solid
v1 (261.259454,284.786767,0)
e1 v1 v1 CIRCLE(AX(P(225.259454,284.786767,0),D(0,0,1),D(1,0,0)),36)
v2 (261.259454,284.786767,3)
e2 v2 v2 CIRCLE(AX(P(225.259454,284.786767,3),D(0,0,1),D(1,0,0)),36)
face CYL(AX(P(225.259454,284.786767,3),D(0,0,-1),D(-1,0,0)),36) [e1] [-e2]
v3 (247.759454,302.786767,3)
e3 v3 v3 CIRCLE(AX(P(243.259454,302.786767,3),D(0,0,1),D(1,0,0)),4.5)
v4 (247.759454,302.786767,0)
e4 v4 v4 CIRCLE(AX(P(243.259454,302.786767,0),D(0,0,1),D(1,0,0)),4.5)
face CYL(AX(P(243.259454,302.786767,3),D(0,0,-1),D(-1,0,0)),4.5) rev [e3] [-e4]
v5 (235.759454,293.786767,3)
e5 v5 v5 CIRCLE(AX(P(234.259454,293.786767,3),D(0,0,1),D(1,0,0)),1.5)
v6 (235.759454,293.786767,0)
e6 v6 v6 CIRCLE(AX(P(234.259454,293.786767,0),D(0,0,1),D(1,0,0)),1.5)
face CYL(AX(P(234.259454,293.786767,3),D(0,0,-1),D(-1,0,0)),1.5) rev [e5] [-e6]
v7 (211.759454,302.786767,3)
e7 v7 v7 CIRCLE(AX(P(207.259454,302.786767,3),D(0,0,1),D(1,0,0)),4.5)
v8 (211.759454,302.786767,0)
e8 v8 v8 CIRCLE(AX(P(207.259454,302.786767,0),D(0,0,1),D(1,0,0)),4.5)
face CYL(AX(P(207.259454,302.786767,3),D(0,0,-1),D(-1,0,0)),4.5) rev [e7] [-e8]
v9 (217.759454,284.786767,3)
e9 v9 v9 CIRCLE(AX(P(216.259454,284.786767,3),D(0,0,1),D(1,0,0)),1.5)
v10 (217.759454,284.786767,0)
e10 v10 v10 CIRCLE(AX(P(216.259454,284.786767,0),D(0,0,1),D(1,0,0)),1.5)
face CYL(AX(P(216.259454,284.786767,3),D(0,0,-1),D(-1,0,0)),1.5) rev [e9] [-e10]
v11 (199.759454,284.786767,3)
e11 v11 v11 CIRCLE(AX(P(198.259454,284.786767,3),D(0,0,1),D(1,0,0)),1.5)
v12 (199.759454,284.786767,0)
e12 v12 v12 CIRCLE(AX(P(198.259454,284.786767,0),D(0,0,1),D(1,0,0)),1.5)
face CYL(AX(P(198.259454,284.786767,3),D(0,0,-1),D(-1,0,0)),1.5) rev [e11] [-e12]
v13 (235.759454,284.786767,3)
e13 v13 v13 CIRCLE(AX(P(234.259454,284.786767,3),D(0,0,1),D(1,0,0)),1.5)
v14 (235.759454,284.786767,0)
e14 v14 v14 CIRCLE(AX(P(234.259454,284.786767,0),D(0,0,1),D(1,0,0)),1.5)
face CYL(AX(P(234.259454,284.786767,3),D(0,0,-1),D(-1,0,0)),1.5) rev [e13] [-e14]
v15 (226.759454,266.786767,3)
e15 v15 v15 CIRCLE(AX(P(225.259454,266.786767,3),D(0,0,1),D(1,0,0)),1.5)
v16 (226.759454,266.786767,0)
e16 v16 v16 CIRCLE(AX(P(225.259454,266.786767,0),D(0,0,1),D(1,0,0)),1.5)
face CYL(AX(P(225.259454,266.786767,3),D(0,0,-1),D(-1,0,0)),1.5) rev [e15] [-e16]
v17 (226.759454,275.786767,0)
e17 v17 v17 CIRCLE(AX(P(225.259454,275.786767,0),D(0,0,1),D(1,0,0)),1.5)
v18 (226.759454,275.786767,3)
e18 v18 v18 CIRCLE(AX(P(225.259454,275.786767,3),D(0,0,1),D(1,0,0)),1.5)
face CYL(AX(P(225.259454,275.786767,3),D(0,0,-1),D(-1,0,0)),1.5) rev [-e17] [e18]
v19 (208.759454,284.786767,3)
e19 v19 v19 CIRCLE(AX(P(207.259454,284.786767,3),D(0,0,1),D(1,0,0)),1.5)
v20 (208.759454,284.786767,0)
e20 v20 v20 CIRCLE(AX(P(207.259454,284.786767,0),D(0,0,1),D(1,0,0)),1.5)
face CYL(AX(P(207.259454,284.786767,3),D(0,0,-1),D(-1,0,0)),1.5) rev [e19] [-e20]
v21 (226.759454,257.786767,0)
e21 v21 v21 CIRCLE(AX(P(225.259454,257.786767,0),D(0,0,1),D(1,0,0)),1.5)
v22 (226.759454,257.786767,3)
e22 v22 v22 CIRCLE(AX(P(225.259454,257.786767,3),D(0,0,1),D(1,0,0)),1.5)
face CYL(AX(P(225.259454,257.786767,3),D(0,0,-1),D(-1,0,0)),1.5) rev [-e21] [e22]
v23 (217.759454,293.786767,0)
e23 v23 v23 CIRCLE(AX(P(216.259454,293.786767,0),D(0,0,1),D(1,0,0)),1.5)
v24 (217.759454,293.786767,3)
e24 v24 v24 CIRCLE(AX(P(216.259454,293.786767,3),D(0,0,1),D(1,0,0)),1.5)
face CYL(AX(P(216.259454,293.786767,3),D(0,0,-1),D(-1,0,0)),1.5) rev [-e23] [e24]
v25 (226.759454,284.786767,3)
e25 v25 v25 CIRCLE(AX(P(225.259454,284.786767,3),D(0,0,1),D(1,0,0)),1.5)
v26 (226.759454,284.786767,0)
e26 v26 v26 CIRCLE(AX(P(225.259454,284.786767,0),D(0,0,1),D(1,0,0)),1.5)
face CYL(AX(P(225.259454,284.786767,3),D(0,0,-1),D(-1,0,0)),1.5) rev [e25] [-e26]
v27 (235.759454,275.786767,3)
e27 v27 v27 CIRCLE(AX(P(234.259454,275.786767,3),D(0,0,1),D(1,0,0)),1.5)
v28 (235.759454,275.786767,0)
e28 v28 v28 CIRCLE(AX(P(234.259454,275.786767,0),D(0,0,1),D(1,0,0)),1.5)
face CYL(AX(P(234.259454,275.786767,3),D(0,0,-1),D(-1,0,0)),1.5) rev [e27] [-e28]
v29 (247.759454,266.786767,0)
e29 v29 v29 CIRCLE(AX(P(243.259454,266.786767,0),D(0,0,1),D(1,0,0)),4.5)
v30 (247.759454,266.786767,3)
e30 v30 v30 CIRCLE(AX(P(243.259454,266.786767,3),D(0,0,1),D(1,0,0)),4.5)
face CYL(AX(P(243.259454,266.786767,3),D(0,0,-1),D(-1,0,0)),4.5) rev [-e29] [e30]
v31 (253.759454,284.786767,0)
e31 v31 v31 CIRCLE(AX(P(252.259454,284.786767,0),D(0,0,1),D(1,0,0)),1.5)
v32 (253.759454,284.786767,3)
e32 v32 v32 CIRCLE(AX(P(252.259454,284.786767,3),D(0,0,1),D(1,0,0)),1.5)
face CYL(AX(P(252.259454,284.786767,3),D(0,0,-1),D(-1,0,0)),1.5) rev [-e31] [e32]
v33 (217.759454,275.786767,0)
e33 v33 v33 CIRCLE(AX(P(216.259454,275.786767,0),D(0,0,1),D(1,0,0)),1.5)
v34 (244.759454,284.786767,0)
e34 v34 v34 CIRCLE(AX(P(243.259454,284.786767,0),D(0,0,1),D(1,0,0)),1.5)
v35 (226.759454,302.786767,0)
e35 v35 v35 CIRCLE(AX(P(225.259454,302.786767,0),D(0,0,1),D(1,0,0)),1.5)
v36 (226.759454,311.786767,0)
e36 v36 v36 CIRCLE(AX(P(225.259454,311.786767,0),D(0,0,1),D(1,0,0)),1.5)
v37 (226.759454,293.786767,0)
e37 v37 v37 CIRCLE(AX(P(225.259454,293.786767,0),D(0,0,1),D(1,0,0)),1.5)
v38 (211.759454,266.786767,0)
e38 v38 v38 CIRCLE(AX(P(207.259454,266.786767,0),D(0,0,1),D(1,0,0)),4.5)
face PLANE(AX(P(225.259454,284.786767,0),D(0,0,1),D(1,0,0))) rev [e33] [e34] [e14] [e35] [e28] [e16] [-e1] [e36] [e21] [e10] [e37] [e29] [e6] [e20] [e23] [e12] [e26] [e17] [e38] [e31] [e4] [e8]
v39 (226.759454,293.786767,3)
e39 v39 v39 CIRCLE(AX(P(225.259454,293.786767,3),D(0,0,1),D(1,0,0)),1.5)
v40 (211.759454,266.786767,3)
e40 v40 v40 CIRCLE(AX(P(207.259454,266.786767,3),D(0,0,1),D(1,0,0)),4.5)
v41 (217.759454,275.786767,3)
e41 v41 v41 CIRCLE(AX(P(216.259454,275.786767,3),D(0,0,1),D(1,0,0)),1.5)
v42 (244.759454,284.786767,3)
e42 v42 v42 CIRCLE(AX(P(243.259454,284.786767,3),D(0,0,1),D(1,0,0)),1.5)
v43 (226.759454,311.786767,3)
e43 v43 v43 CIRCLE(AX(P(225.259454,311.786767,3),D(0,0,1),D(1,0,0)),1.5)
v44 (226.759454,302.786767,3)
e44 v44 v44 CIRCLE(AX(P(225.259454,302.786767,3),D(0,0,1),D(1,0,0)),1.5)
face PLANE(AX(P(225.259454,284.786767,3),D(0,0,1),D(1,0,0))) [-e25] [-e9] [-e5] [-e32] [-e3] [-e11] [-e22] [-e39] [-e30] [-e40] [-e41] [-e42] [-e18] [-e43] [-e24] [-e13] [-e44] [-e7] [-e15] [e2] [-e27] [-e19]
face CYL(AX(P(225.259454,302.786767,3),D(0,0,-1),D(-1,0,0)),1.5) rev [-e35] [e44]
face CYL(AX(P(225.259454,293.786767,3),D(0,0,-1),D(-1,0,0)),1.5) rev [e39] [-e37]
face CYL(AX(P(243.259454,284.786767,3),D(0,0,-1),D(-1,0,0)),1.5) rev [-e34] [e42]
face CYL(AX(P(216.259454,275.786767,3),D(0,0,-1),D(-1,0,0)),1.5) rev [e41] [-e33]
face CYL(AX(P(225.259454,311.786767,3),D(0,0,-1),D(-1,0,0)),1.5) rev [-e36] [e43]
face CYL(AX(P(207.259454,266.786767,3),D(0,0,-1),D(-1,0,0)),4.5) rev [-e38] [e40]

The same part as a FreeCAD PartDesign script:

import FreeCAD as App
import Part
import Sketcher
from FreeCAD import Vector

doc = App.newDocument("Part")
body = doc.addObject("PartDesign::Body", "Body")

sketch1 = doc.addObject("Sketcher::SketchObject", "Sketch")
body.addObject(sketch1)
sketch1.AttachmentSupport = (doc.XY_Plane, [""])
sketch1.MapMode = "FlatFace"
sketch1.addGeometry(Part.Circle(Vector(225.3, 284.8, 0), Vector(0, 0, 1), 36), False)
sketch1.addGeometry(Part.Circle(Vector(207.3, 266.8, 0), Vector(0, 0, 1), 4.5), False)
sketch1.addGeometry(Part.Circle(Vector(216.3, 275.8, 0), Vector(0, 0, 1), 1.5), False)
sketch1.addGeometry(Part.Circle(Vector(225.3, 257.8, 0), Vector(0, 0, 1), 1.5), False)
sketch1.addGeometry(Part.Circle(Vector(225.3, 266.8, 0), Vector(0, 0, 1), 1.5), False)
sketch1.addGeometry(Part.Circle(Vector(243.3, 266.8, 0), Vector(0, 0, 1), 4.5), False)
sketch1.addGeometry(Part.Circle(Vector(225.3, 275.8, 0), Vector(0, 0, 1), 1.5), False)
sketch1.addGeometry(Part.Circle(Vector(234.3, 275.8, 0), Vector(0, 0, 1), 1.5), False)
sketch1.addGeometry(Part.Circle(Vector(198.3, 284.8, 0), Vector(0, 0, 1), 1.5), False)
sketch1.addGeometry(Part.Circle(Vector(207.3, 284.8, 0), Vector(0, 0, 1), 1.5), False)
sketch1.addGeometry(Part.Circle(Vector(216.3, 284.8, 0), Vector(0, 0, 1), 1.5), False)
sketch1.addGeometry(Part.Circle(Vector(216.3, 293.8, 0), Vector(0, 0, 1), 1.5), False)
sketch1.addGeometry(Part.Circle(Vector(207.3, 302.8, 0), Vector(0, 0, 1), 4.5), False)
sketch1.addGeometry(Part.Circle(Vector(225.3, 284.8, 0), Vector(0, 0, 1), 1.5), False)
sketch1.addGeometry(Part.Circle(Vector(234.3, 284.8, 0), Vector(0, 0, 1), 1.5), False)
sketch1.addGeometry(Part.Circle(Vector(225.3, 293.8, 0), Vector(0, 0, 1), 1.5), False)
sketch1.addGeometry(Part.Circle(Vector(234.3, 293.8, 0), Vector(0, 0, 1), 1.5), False)
sketch1.addGeometry(Part.Circle(Vector(243.3, 284.8, 0), Vector(0, 0, 1), 1.5), False)
sketch1.addGeometry(Part.Circle(Vector(252.3, 284.8, 0), Vector(0, 0, 1), 1.5), False)
sketch1.addGeometry(Part.Circle(Vector(225.3, 302.8, 0), Vector(0, 0, 1), 1.5), False)
sketch1.addGeometry(Part.Circle(Vector(225.3, 311.8, 0), Vector(0, 0, 1), 1.5), False)
sketch1.addGeometry(Part.Circle(Vector(243.3, 302.8, 0), Vector(0, 0, 1), 4.5), False)
sketch1.addConstraint(Sketcher.Constraint("Coincident", 13, 3, 0, 3))
sketch1.addConstraint(Sketcher.Constraint("Equal", 2, 3))
sketch1.addConstraint(Sketcher.Constraint("Equal", 3, 4))
sketch1.addConstraint(Sketcher.Constraint("Equal", 1, 5))
sketch1.addConstraint(Sketcher.Constraint("Equal", 4, 6))
sketch1.addConstraint(Sketcher.Constraint("Equal", 6, 7))
sketch1.addConstraint(Sketcher.Constraint("Equal", 7, 8))
sketch1.addConstraint(Sketcher.Constraint("Equal", 8, 9))
sketch1.addConstraint(Sketcher.Constraint("Equal", 9, 10))
sketch1.addConstraint(Sketcher.Constraint("Equal", 10, 11))
sketch1.addConstraint(Sketcher.Constraint("Equal", 5, 12))
sketch1.addConstraint(Sketcher.Constraint("Equal", 11, 13))
sketch1.addConstraint(Sketcher.Constraint("Equal", 13, 14))
sketch1.addConstraint(Sketcher.Constraint("Equal", 14, 15))
sketch1.addConstraint(Sketcher.Constraint("Equal", 15, 16))
sketch1.addConstraint(Sketcher.Constraint("Equal", 16, 17))
sketch1.addConstraint(Sketcher.Constraint("Equal", 17, 18))
sketch1.addConstraint(Sketcher.Constraint("Equal", 18, 19))
sketch1.addConstraint(Sketcher.Constraint("Equal", 19, 20))
sketch1.addConstraint(Sketcher.Constraint("Equal", 12, 21))
sketch1.addConstraint(Sketcher.Constraint("Horizontal", 1, 3, 4, 3))
sketch1.addConstraint(Sketcher.Constraint("Horizontal", 4, 3, 5, 3))
sketch1.addConstraint(Sketcher.Constraint("Horizontal", 2, 3, 6, 3))
sketch1.addConstraint(Sketcher.Constraint("Horizontal", 6, 3, 7, 3))
sketch1.addConstraint(Sketcher.Constraint("Horizontal", 0, 3, 8, 3))
sketch1.addConstraint(Sketcher.Constraint("Horizontal", 8, 3, 9, 3))
sketch1.addConstraint(Sketcher.Constraint("Horizontal", 9, 3, 10, 3))
sketch1.addConstraint(Sketcher.Constraint("Horizontal", 13, 3, 14, 3))
sketch1.addConstraint(Sketcher.Constraint("Horizontal", 11, 3, 15, 3))
sketch1.addConstraint(Sketcher.Constraint("Horizontal", 15, 3, 16, 3))
sketch1.addConstraint(Sketcher.Constraint("Horizontal", 14, 3, 17, 3))
sketch1.addConstraint(Sketcher.Constraint("Horizontal", 17, 3, 18, 3))
sketch1.addConstraint(Sketcher.Constraint("Horizontal", 12, 3, 19, 3))
sketch1.addConstraint(Sketcher.Constraint("Horizontal", 19, 3, 21, 3))
sketch1.addConstraint(Sketcher.Constraint("Vertical", 0, 3, 3, 3))
sketch1.addConstraint(Sketcher.Constraint("Vertical", 3, 3, 4, 3))
sketch1.addConstraint(Sketcher.Constraint("Vertical", 4, 3, 6, 3))
sketch1.addConstraint(Sketcher.Constraint("Vertical", 1, 3, 9, 3))
sketch1.addConstraint(Sketcher.Constraint("Vertical", 2, 3, 10, 3))
sketch1.addConstraint(Sketcher.Constraint("Vertical", 10, 3, 11, 3))
sketch1.addConstraint(Sketcher.Constraint("Vertical", 9, 3, 12, 3))
sketch1.addConstraint(Sketcher.Constraint("Vertical", 7, 3, 14, 3))
sketch1.addConstraint(Sketcher.Constraint("Vertical", 13, 3, 15, 3))
sketch1.addConstraint(Sketcher.Constraint("Vertical", 14, 3, 16, 3))
sketch1.addConstraint(Sketcher.Constraint("Vertical", 5, 3, 17, 3))
sketch1.addConstraint(Sketcher.Constraint("Vertical", 15, 3, 19, 3))
sketch1.addConstraint(Sketcher.Constraint("Vertical", 19, 3, 20, 3))
sketch1.addConstraint(Sketcher.Constraint("Vertical", 17, 3, 21, 3))
sketch1.addConstraint(Sketcher.Constraint("Diameter", 0, 72.0))
sketch1.addConstraint(Sketcher.Constraint("Diameter", 1, 9.0))
sketch1.addConstraint(Sketcher.Constraint("Diameter", 2, 3.0))
sketch1.addConstraint(Sketcher.Constraint("DistanceX", 1, 3, 0, 3, 18.0))
sketch1.addConstraint(Sketcher.Constraint("DistanceY", 1, 3, 0, 3, 18.0))
sketch1.addConstraint(Sketcher.Constraint("DistanceX", 2, 3, 0, 3, 9.0))
sketch1.addConstraint(Sketcher.Constraint("DistanceY", 2, 3, 0, 3, 9.0))
sketch1.addConstraint(Sketcher.Constraint("DistanceY", 3, 3, 1, 3, 9.0))
sketch1.addConstraint(Sketcher.Constraint("DistanceX", 4, 3, 5, 3, 18.0))
sketch1.addConstraint(Sketcher.Constraint("DistanceX", 6, 3, 7, 3, 9.0))
sketch1.addConstraint(Sketcher.Constraint("DistanceX", 8, 3, 1, 3, 9.0))
sketch1.addConstraint(Sketcher.Constraint("DistanceY", 10, 3, 11, 3, 9.0))
sketch1.addConstraint(Sketcher.Constraint("DistanceY", 11, 3, 12, 3, 9.0))
sketch1.addConstraint(Sketcher.Constraint("DistanceX", 17, 3, 18, 3, 9.0))
sketch1.addConstraint(Sketcher.Constraint("DistanceY", 19, 3, 20, 3, 9.0))
sketch1.addConstraint(Sketcher.Constraint("DistanceX", -1, 1, 0, 3, 225.259454))
sketch1.addConstraint(Sketcher.Constraint("DistanceY", -1, 1, 0, 3, 284.786767))
pad1 = doc.addObject("PartDesign::Pad", "Pad")
body.addObject(pad1)
pad1.Profile = sketch1
pad1.Length = 3

doc.recompute()
